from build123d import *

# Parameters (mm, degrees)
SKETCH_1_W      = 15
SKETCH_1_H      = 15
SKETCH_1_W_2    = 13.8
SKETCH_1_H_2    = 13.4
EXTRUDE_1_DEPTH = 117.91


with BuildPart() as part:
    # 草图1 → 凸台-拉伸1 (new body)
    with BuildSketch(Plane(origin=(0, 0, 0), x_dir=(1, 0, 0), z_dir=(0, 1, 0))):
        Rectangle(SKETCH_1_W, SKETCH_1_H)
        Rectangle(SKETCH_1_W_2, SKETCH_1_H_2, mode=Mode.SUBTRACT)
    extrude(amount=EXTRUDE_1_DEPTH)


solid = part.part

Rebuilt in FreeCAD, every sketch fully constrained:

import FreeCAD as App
import Part
import Sketcher
Q = App.Units.Quantity


def add_polygon(sketch, points):
    """Adds a closed chain of lines whose ends are joined by coincident constraints."""
    first, n = sketch.GeometryCount, len(points)
    for a, b in zip(points, points[1:] + points[:1]):
        sketch.addGeometry(Part.LineSegment(App.Vector(*a, 0), App.Vector(*b, 0)), False)
    for i in range(n):
        sketch.addConstraint(Sketcher.Constraint("Coincident", first + i, 2, first + (i + 1) % n, 1))

doc = App.newDocument("Part")
params = doc.addObject("Spreadsheet::Sheet", "Params")
for row, (alias, value) in enumerate([
    ("sketch1_width", "15 mm"),
    ("sketch1_width2", "13.8 mm"),
    ("sketch1_height", "13.4 mm"),
    ("pad1_length", "117.91 mm"),
], start=1):
    params.set(f"A{row}", alias)
    params.set(f"B{row}", "=" + value)
    params.setAlias(f"B{row}", alias)

body = doc.addObject("PartDesign::Body", "Body")

# Sketch on XZ plane
sketch1 = body.newObject("Sketcher::SketchObject", "Sketch")
sketch1.AttachmentSupport = (doc.getObject("XZ_Plane"), [""])
sketch1.MapMode = "FlatFace"
add_polygon(sketch1, [(-7.5, -7.5), (-7.5, 7.5), (7.5, 7.5), (7.5, -7.5)])  # lines 0-3
add_polygon(sketch1, [(6.9, 6.7), (-6.9, 6.7), (-6.9, -6.7), (6.9, -6.7)])  # lines 4-7
sketch1.addConstraint([
    Sketcher.Constraint("Vertical", 0),
    Sketcher.Constraint("Horizontal", 1),
    Sketcher.Constraint("Vertical", 2),
    Sketcher.Constraint("Horizontal", 3),
    Sketcher.Constraint("Horizontal", 4),
    Sketcher.Constraint("Vertical", 5),
    Sketcher.Constraint("Horizontal", 6),
    Sketcher.Constraint("Vertical", 7),
    Sketcher.Constraint("Symmetric", 0, 2, 2, 2, -1, 1),
    Sketcher.Constraint("Symmetric", 4, 2, 6, 2, -1, 1),
    Sketcher.Constraint("Equal", 3, 0),
    Sketcher.Constraint("DistanceX", 1, 1, 1, 2, Q("15 mm")),
    Sketcher.Constraint("DistanceX", 4, 2, 4, 1, Q("13.8 mm")),
    Sketcher.Constraint("DistanceY", 5, 2, 5, 1, Q("13.4 mm")),
])
sketch1.setExpression("Constraints[19]", "Params.sketch1_width")
sketch1.setExpression("Constraints[20]", "Params.sketch1_width2")
sketch1.setExpression("Constraints[21]", "Params.sketch1_height")
pad1 = body.newObject("PartDesign::Pad", "Pad")
pad1.Profile = sketch1
pad1.setExpression("Length", "Params.pad1_length")
pad1.Reversed = True

doc.recompute()
